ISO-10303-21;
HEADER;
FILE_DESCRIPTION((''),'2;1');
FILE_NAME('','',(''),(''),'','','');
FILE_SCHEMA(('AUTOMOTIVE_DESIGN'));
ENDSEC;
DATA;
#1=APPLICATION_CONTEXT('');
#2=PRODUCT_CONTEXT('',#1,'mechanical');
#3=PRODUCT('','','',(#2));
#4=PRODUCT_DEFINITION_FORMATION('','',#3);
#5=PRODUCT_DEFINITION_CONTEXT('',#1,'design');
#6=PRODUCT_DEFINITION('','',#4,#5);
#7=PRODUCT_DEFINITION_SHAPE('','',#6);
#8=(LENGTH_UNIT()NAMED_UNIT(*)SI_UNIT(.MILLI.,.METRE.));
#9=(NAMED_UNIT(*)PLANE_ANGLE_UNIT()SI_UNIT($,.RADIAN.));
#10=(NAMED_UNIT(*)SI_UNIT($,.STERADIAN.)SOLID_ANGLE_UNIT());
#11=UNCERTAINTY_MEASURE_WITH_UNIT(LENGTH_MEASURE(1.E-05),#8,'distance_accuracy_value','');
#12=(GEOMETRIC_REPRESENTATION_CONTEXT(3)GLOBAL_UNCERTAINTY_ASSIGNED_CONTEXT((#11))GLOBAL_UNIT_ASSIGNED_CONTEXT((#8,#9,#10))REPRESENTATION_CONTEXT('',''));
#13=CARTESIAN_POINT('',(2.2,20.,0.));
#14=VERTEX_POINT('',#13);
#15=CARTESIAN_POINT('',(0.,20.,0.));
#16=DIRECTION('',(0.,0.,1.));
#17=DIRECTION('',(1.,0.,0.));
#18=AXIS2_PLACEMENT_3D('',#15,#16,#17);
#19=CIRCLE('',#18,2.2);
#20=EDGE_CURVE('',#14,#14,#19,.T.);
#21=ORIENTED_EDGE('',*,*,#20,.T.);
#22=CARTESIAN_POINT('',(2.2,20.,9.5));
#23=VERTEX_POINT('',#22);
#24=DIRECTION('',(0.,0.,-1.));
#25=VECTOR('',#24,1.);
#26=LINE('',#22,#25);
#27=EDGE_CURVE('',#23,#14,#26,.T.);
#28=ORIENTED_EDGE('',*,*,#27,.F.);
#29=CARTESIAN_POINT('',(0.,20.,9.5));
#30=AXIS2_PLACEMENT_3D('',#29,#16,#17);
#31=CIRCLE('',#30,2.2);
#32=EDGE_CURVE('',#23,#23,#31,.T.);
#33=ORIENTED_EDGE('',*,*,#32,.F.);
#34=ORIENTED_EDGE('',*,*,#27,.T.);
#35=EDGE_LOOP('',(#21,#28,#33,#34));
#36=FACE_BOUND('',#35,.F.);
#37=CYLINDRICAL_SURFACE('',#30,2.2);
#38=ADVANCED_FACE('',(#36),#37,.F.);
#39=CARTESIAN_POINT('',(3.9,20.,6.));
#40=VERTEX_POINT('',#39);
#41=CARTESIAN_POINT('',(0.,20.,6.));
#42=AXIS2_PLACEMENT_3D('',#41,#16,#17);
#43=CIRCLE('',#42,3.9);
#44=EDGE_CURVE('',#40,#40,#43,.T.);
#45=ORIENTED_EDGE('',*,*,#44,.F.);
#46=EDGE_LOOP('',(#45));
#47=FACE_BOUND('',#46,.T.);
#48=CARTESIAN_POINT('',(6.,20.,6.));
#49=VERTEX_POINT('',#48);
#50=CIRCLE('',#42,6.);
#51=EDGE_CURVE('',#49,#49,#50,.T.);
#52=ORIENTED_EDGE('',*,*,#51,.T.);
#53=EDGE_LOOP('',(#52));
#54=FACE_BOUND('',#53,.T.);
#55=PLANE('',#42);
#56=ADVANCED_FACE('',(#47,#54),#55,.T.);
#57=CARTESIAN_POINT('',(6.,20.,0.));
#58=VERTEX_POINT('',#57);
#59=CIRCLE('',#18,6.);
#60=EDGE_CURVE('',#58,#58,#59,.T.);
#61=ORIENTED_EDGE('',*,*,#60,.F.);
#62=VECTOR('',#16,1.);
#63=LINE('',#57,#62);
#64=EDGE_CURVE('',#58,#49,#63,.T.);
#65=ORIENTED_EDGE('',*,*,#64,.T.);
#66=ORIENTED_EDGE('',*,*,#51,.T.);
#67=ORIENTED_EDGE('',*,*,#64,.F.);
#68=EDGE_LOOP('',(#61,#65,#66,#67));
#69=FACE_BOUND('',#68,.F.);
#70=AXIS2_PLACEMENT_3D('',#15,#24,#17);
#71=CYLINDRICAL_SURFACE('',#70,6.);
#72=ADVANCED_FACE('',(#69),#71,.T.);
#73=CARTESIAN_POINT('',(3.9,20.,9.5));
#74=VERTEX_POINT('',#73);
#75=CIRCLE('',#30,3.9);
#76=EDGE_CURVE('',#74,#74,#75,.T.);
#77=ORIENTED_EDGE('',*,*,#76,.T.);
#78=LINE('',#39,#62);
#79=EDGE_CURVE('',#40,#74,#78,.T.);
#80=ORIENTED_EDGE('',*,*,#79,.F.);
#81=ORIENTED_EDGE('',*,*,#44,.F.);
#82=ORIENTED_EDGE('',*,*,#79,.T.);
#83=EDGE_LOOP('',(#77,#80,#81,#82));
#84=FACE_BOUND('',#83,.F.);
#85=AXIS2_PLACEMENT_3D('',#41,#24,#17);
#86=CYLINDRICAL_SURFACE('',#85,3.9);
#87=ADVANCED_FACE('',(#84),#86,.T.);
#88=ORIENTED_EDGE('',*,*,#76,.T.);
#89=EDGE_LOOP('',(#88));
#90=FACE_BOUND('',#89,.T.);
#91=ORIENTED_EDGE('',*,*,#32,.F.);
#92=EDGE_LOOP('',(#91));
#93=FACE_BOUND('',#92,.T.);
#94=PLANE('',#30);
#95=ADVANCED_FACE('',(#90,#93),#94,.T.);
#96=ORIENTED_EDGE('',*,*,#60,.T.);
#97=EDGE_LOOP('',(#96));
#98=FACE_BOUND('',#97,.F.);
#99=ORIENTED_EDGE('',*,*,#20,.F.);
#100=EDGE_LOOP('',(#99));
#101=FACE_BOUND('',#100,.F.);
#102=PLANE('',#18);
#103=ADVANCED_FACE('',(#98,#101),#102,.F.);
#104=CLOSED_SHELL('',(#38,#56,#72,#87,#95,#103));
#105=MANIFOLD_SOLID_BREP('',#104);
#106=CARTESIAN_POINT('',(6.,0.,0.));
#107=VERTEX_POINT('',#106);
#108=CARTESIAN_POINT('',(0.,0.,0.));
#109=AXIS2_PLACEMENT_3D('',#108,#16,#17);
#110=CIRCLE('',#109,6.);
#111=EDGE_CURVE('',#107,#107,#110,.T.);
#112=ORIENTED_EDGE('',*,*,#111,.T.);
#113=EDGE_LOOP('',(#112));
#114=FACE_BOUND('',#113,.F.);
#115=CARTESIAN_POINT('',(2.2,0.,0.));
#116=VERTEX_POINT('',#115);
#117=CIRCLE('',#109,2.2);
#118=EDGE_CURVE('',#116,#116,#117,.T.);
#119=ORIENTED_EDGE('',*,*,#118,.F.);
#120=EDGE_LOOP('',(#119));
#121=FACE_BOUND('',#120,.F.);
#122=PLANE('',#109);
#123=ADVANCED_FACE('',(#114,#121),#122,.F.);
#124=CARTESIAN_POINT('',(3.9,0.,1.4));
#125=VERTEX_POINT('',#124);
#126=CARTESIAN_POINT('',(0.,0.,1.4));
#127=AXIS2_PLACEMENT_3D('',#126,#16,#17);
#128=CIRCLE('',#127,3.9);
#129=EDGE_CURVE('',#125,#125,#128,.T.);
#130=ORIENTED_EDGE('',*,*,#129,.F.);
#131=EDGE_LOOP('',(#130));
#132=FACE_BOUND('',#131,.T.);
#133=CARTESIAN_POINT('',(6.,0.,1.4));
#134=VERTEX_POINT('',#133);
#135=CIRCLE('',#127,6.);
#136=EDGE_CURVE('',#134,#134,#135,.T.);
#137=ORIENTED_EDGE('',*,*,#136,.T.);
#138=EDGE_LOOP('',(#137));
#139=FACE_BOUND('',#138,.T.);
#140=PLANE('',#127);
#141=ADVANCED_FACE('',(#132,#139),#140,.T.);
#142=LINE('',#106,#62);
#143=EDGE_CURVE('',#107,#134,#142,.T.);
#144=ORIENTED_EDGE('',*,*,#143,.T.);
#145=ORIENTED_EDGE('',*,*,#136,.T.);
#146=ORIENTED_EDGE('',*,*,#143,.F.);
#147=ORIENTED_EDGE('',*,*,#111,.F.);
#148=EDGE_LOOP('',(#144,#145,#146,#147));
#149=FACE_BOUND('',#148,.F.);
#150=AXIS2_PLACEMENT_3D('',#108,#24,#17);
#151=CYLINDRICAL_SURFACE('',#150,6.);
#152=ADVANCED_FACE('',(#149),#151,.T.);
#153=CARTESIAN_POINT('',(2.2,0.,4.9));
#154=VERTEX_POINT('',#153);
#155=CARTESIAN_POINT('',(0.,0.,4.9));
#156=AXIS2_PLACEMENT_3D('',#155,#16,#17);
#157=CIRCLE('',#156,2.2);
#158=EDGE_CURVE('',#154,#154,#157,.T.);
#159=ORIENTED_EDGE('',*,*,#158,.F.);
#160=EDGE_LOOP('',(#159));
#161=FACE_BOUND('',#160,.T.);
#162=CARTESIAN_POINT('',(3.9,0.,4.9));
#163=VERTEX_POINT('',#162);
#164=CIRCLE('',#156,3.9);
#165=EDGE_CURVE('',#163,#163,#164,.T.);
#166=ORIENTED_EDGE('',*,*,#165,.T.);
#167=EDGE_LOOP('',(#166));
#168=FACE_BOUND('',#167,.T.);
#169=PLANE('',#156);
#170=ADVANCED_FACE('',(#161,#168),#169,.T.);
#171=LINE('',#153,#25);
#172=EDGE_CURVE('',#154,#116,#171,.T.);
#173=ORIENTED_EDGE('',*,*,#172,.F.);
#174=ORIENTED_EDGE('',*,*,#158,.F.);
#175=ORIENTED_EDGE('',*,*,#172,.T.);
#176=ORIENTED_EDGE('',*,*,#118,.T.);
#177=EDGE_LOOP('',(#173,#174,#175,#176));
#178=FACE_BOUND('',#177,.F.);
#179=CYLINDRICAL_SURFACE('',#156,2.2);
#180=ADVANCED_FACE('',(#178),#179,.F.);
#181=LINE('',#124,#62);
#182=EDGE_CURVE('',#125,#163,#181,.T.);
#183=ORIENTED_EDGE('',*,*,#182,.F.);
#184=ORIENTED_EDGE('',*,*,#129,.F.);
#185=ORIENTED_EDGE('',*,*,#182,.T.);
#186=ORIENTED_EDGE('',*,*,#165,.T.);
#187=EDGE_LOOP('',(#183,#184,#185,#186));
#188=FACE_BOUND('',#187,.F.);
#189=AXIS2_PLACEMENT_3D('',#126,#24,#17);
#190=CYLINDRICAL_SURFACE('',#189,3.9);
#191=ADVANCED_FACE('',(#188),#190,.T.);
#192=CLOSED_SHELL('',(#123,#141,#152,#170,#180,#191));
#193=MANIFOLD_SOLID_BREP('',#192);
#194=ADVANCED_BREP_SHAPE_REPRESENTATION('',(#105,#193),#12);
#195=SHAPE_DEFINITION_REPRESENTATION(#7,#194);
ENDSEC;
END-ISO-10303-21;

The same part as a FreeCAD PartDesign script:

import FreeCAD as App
import Part
import Sketcher
from FreeCAD import Vector
Q = App.Units.Quantity

doc = App.newDocument("Part")
params = doc.addObject("Spreadsheet::Sheet", "Params")
for row, (alias, value) in enumerate([
    ("sketch1_diameter", "12 mm"),
    ("pad1_length", "1.4 mm"),
    ("sketch2_diameter", "7.8 mm"),
    ("pad2_length", "3.5 mm"),
    ("sketch3_diameter", "4.4 mm"),
    ("sketch4_diameter", "12 mm"),
    ("pad3_length", "6 mm"),
    ("sketch5_diameter", "7.8 mm"),
    ("pad4_length", "3.5 mm"),
    ("sketch6_diameter", "4.4 mm"),
], start=1):
    params.set(f"A{row}", alias)
    params.set(f"B{row}", "=" + value)
    params.setAlias(f"B{row}", alias)

body = doc.addObject("PartDesign::Body", "Body")

# Sketch on XY plane
sketch1 = body.newObject("Sketcher::SketchObject", "Sketch")
sketch1.AttachmentSupport = (doc.getObject("XY_Plane"), [""])
sketch1.MapMode = "FlatFace"
sketch1.addGeometry(Part.Circle(Vector(0, 0, 0), Vector(0, 0, 1), 6), False)
sketch1.addConstraint(Sketcher.Constraint("Coincident", 0, 3, -1, 1))
sketch1.addConstraint(Sketcher.Constraint("Diameter", 0, Q("12 mm")))
sketch1.setExpression("Constraints[1]", "Params.sketch1_diameter")
pad1 = body.newObject("PartDesign::Pad", "Pad")
pad1.Profile = sketch1
pad1.setExpression("Length", "Params.pad1_length")

# Sketch on XY plane
sketch2 = body.newObject("Sketcher::SketchObject", "Sketch001")
sketch2.AttachmentSupport = (doc.getObject("XY_Plane"), [""])
sketch2.MapMode = "FlatFace"
sketch2.AttachmentOffset = App.Placement(Vector(0, 0, 1.4), App.Rotation())
sketch2.addGeometry(Part.Circle(Vector(0, 0, 0), Vector(0, 0, 1), 3.9), False)
sketch2.addConstraint(Sketcher.Constraint("Coincident", 0, 3, -1, 1))
sketch2.addConstraint(Sketcher.Constraint("Diameter", 0, Q("7.8 mm")))
sketch2.setExpression("Constraints[1]", "Params.sketch2_diameter")
pad2 = body.newObject("PartDesign::Pad", "Pad001")
pad2.Profile = sketch2
pad2.setExpression("Length", "Params.pad2_length")

# Sketch on XY plane
sketch3 = body.newObject("Sketcher::SketchObject", "Sketch002")
sketch3.AttachmentSupport = (doc.getObject("XY_Plane"), [""])
sketch3.MapMode = "FlatFace"
sketch3.AttachmentOffset = App.Placement(Vector(0, 0, 4.9), App.Rotation())
sketch3.addGeometry(Part.Circle(Vector(0, 0, 0), Vector(0, 0, 1), 2.2), False)
sketch3.addConstraint(Sketcher.Constraint("Coincident", 0, 3, -1, 1))
sketch3.addConstraint(Sketcher.Constraint("Diameter", 0, Q("4.4 mm")))
sketch3.setExpression("Constraints[1]", "Params.sketch3_diameter")
pocket1 = body.newObject("PartDesign::Pocket", "Pocket")
pocket1.Profile = sketch3
pocket1.Type = "ThroughAll"
body2 = doc.addObject("PartDesign::Body", "Body001")

# Sketch on XY plane
sketch4 = body2.newObject("Sketcher::SketchObject", "Sketch003")
sketch4.AttachmentSupport = (doc.getObject("XY_Plane001"), [""])
sketch4.MapMode = "FlatFace"
sketch4.addGeometry(Part.Circle(Vector(0, 20, 0), Vector(0, 0, 1), 6), False)
sketch4.addConstraint(Sketcher.Constraint("PointOnObject", 0, 3, -2))
sketch4.addConstraint(Sketcher.Constraint("Diameter", 0, Q("12 mm")))
sketch4.addConstraint(Sketcher.Constraint("DistanceY", -1, 1, 0, 3, Q("20 mm")))
sketch4.setExpression("Constraints[1]", "Params.sketch4_diameter")
pad3 = body2.newObject("PartDesign::Pad", "Pad002")
pad3.Profile = sketch4
pad3.setExpression("Length", "Params.pad3_length")

# Sketch on XY plane
sketch5 = body2.newObject("Sketcher::SketchObject", "Sketch004")
sketch5.AttachmentSupport = (doc.getObject("XY_Plane001"), [""])
sketch5.MapMode = "FlatFace"
sketch5.AttachmentOffset = App.Placement(Vector(0, 0, 6), App.Rotation())
sketch5.addGeometry(Part.Circle(Vector(0, 20, 0), Vector(0, 0, 1), 3.9), False)
sketch5.addConstraint(Sketcher.Constraint("PointOnObject", 0, 3, -2))
sketch5.addConstraint(Sketcher.Constraint("Diameter", 0, Q("7.8 mm")))
sketch5.addConstraint(Sketcher.Constraint("DistanceY", -1, 1, 0, 3, Q("20 mm")))
sketch5.setExpression("Constraints[1]", "Params.sketch5_diameter")
pad4 = body2.newObject("PartDesign::Pad", "Pad003")
pad4.Profile = sketch5
pad4.setExpression("Length", "Params.pad4_length")

# Sketch on XY plane
sketch6 = body2.newObject("Sketcher::SketchObject", "Sketch005")
sketch6.AttachmentSupport = (doc.getObject("XY_Plane001"), [""])
sketch6.MapMode = "FlatFace"
sketch6.AttachmentOffset = App.Placement(Vector(0, 0, 9.5), App.Rotation())
sketch6.addGeometry(Part.Circle(Vector(0, 20, 0), Vector(0, 0, 1), 2.2), False)
sketch6.addConstraint(Sketcher.Constraint("PointOnObject", 0, 3, -2))
sketch6.addConstraint(Sketcher.Constraint("Diameter", 0, Q("4.4 mm")))
sketch6.addConstraint(Sketcher.Constraint("DistanceY", -1, 1, 0, 3, Q("20 mm")))
sketch6.setExpression("Constraints[1]", "Params.sketch6_diameter")
pocket2 = body2.newObject("PartDesign::Pocket", "Pocket001")
pocket2.Profile = sketch6
pocket2.Type = "ThroughAll"

doc.recompute()
